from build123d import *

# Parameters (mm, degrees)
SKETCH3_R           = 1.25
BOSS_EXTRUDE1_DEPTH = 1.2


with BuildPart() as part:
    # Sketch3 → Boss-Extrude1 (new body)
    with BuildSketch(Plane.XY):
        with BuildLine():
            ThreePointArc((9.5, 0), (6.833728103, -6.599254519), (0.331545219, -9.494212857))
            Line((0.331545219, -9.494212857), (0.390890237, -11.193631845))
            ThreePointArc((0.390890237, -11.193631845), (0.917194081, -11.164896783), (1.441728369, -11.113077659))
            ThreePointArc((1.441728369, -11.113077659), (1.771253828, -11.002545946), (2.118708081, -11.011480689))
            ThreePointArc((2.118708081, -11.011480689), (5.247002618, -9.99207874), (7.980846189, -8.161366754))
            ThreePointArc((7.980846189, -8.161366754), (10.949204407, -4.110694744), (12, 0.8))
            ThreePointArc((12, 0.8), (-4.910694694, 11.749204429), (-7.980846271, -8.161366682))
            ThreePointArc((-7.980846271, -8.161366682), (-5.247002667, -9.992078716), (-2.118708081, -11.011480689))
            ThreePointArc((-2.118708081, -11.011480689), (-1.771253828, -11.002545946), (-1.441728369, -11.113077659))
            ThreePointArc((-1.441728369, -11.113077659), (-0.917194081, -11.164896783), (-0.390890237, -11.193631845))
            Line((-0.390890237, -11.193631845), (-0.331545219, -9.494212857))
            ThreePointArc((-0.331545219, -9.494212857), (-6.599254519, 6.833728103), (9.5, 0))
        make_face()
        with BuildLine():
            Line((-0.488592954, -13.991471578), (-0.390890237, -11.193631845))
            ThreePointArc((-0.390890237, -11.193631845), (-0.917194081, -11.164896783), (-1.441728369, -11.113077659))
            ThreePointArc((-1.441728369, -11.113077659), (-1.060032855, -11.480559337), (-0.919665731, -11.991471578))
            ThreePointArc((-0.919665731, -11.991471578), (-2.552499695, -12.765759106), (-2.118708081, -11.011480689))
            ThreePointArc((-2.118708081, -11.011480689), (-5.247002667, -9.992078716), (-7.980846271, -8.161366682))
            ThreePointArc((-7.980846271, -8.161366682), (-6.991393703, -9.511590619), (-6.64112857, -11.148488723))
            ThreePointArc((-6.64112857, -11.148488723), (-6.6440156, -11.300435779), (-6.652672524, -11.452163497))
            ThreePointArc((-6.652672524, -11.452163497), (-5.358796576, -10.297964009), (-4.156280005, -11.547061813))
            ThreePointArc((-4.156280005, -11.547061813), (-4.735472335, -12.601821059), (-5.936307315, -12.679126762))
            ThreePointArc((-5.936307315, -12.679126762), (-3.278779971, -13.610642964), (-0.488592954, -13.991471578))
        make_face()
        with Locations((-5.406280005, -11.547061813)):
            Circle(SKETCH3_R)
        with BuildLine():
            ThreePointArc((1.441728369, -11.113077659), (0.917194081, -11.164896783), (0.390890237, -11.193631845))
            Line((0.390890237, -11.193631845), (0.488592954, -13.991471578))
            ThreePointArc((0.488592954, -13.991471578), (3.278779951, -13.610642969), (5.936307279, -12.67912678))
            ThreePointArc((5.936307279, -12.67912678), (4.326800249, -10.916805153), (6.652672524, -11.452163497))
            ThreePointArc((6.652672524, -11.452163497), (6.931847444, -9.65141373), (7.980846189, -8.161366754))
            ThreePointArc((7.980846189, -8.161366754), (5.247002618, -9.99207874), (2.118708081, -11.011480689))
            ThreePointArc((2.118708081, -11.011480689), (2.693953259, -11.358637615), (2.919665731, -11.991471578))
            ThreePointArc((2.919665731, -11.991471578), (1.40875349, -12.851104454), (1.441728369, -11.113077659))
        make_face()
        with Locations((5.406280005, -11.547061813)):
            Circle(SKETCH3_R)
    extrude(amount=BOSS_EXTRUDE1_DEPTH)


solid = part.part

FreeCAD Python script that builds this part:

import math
import FreeCAD as App
import Part
import Sketcher

doc = App.newDocument("Part")
body = doc.addObject("PartDesign::Body", "Body")

sketch1 = doc.addObject("Sketcher::SketchObject", "Sketch")
body.addObject(sketch1)
sketch1.AttachmentSupport = (doc.XY_Plane, [""])
sketch1.MapMode = "FlatFace"
sketch1.addGeometry([
    Part.ArcOfCircle(Part.Circle(App.Vector(0, 0, 0), App.Vector(0, 0, 1), 9.5), math.radians(-88), math.radians(0)),
    Part.LineSegment(App.Vector(0.331545, -9.494213, 0), App.Vector(0.39089, -11.193632, 0)),
    Part.LineSegment(App.Vector(0.39089, -11.193632, 0), App.Vector(0.488593, -13.991472, 0)),
    Part.ArcOfCircle(Part.Circle(App.Vector(0, 0, 0), App.Vector(0, 0, 1), 14), math.radians(-88), math.radians(-64.911228)),
    Part.ArcOfCircle(Part.Circle(App.Vector(5.40628, -11.547062, 0), App.Vector(0, 0, 1), 1.25), math.radians(-64.911237), math.radians(4.354008)),
    Part.ArcOfCircle(Part.Circle(App.Vector(10.641129, -11.148489, 0), App.Vector(0, 0, 1), 4), math.radians(131.687741), math.radians(184.35401)),
    Part.ArcOfCircle(Part.Circle(App.Vector(0, 0.8, 0), App.Vector(0, 0, 1), 12), math.radians(-48.312265), math.radians(0)),
    Part.ArcOfCircle(Part.Circle(App.Vector(0, 0.8, 0), App.Vector(0, 0, 1), 12), math.radians(0), math.radians(228.312264)),
    Part.ArcOfCircle(Part.Circle(App.Vector(-10.641129, -11.148489, 0), App.Vector(0, 0, 1), 4), math.radians(0), math.radians(48.31226)),
    Part.ArcOfCircle(Part.Circle(App.Vector(-10.641128, -11.148489, 0), App.Vector(0, 0, 1), 3.999999), math.radians(-4.35401), math.radians(0)),
    Part.ArcOfCircle(Part.Circle(App.Vector(-5.40628, -11.547062, 0), App.Vector(0, 0, 1), 1.25), math.radians(175.645992), math.radians(244.911235)),
    Part.ArcOfCircle(Part.Circle(App.Vector(0, 0, 0), App.Vector(0, 0, 1), 14), math.radians(-115.088772), math.radians(-92)),
    Part.LineSegment(App.Vector(-0.488593, -13.991472, 0), App.Vector(-0.39089, -11.193632, 0)),
    Part.LineSegment(App.Vector(-0.39089, -11.193632, 0), App.Vector(-0.331545, -9.494213, 0)),
    Part.ArcOfCircle(Part.Circle(App.Vector(0, 0, 0), App.Vector(0, 0, 1), 9.5), math.radians(0), math.radians(268)),
    Part.ArcOfCircle(Part.Circle(App.Vector(1.919666, -11.991472, 0), App.Vector(0, 0, 1), 1), math.radians(78.519036), math.radians(118.550774)),
    Part.ArcOfCircle(Part.Circle(App.Vector(1.919666, -11.991472, 0), App.Vector(0, 0, 1), 1), math.radians(0), math.radians(78.519036)),
    Part.ArcOfCircle(Part.Circle(App.Vector(1.919666, -11.991472, 0), App.Vector(0, 0, 1), 1), math.radians(118.550774), math.radians(360)),
    Part.ArcOfCircle(Part.Circle(App.Vector(-1.919666, -11.991472, 0), App.Vector(0, 0, 1), 1), math.radians(61.449226), math.radians(101.480964)),
    Part.ArcOfCircle(Part.Circle(App.Vector(-1.919666, -11.991472, 0), App.Vector(0, 0, 1), 1), math.radians(0), math.radians(61.449226)),
    Part.ArcOfCircle(Part.Circle(App.Vector(-1.919666, -11.991472, 0), App.Vector(0, 0, 1), 1), math.radians(101.480964), math.radians(360)),
], False)
sketch1.addConstraint([
    Sketcher.Constraint("Coincident", 0, 1, 1, 1),
    Sketcher.Constraint("Coincident", 1, 2, 2, 1),
    Sketcher.Constraint("Coincident", 2, 2, 3, 1),
    Sketcher.Constraint("Coincident", 3, 2, 4, 1),
    Sketcher.Constraint("Coincident", 4, 2, 5, 2),
    Sketcher.Constraint("Coincident", 5, 1, 6, 1),
    Sketcher.Constraint("Coincident", 6, 2, 7, 1),
    Sketcher.Constraint("Coincident", 7, 2, 8, 2),
    Sketcher.Constraint("Coincident", 8, 1, 9, 2),
    Sketcher.Constraint("Coincident", 9, 1, 10, 1),
    Sketcher.Constraint("Coincident", 10, 2, 11, 1),
    Sketcher.Constraint("Coincident", 11, 2, 12, 1),
    Sketcher.Constraint("Coincident", 12, 2, 13, 1),
    Sketcher.Constraint("Coincident", 13, 2, 14, 2),
    Sketcher.Constraint("Coincident", 14, 1, 0, 2),
    Sketcher.Constraint("Coincident", 15, 1, 16, 2),
    Sketcher.Constraint("Coincident", 16, 1, 17, 2),
    Sketcher.Constraint("Coincident", 17, 1, 15, 2),
    Sketcher.Constraint("Coincident", 18, 1, 19, 2),
    Sketcher.Constraint("Coincident", 19, 1, 20, 2),
    Sketcher.Constraint("Coincident", 20, 1, 18, 2),
    Sketcher.Constraint("Coincident", 0, 3, -1, 1),
    Sketcher.Constraint("Coincident", 3, 3, -1, 1),
    Sketcher.Constraint("Coincident", 11, 3, -1, 1),
    Sketcher.Constraint("Coincident", 14, 3, -1, 1),
    Sketcher.Constraint("Coincident", 7, 3, 6, 3),
    Sketcher.Constraint("Coincident", 9, 3, 8, 3),
    Sketcher.Constraint("Coincident", 16, 3, 15, 3),
    Sketcher.Constraint("Coincident", 19, 3, 18, 3),
    Sketcher.Constraint("PointOnObject", 6, 3, -2),
    Sketcher.Constraint("PointOnObject", 14, 1, -1),
    Sketcher.Constraint("Radius", 3, 14.0),
    Sketcher.Constraint("Radius", 5, 4.0),
    Sketcher.Constraint("Radius", 6, 12.0),
    Sketcher.Constraint("Radius", 8, 4.0),
    Sketcher.Constraint("Radius", 11, 14.0),
    Sketcher.Constraint("Radius", 15, 1.0),
    Sketcher.Constraint("Radius", 17, 1.0),
    Sketcher.Constraint("Radius", 18, 1.0),
    Sketcher.Constraint("Radius", 20, 1.0),
    Sketcher.Constraint("Radius", 0, 9.5),
    Sketcher.Constraint("Radius", 4, 1.25),
    Sketcher.Constraint("Radius", 10, 1.25),
    Sketcher.Constraint("DistanceY", 2, 2, 15, 3, 2.0),
    Sketcher.Constraint("DistanceY", 2, 2, 18, 3, 2.0),
    Sketcher.Constraint("DistanceY", 11, 2, 18, 3, 2.0),
    Sketcher.Constraint("DistanceY", -1, 1, 6, 3, 0.8),
    Sketcher.Constraint("DistanceY", -1, 1, 6, 2, 0.8),
    Sketcher.Constraint("DistanceY", 4, 3, 4, 2, 0.094898),
    Sketcher.Constraint("DistanceY", 10, 3, 9, 1, 0.094898),
    Sketcher.Constraint("DistanceX", -1, 1, 4, 3, 5.40628),
    Sketcher.Constraint("DistanceX", 8, 3, -1, 1, 10.641129),
    Sketcher.Constraint("DistanceY", 15, 3, -1, 1, 11.991472),
    Sketcher.Constraint("DistanceX", -1, 1, 1, 2, 0.39089),
    Sketcher.Constraint("DistanceY", 1, 2, -1, 1, 11.193632),
    Sketcher.Constraint("DistanceY", 8, 1, -1, 1, 11.148489),
    Sketcher.Constraint("DistanceX", 12, 2, -1, 1, 0.39089),
    Sketcher.Constraint("DistanceY", 12, 2, -1, 1, 11.193632),
    Sketcher.Constraint("DistanceX", -1, 1, 15, 1, 2.118708),
    Sketcher.Constraint("DistanceY", 15, 1, -1, 1, 11.011481),
    Sketcher.Constraint("DistanceY", 16, 1, -1, 1, 11.991472),
    Sketcher.Constraint("DistanceX", -1, 1, 17, 1, 1.441728),
    Sketcher.Constraint("DistanceX", 18, 1, -1, 1, 1.441728),
    Sketcher.Constraint("DistanceY", 19, 1, -1, 1, 11.991472),
    Sketcher.Constraint("DistanceX", 20, 1, -1, 1, 2.118708),
    Sketcher.Constraint("DistanceY", 20, 1, -1, 1, 11.011481),
    Sketcher.Constraint("DistanceX", 0, 1, 17, 3, 1.588121),
    Sketcher.Constraint("DistanceX", 15, 3, 3, 2, 4.016642),
    Sketcher.Constraint("DistanceY", 5, 3, 5, 1, 2.987122),
    Sketcher.Constraint("DistanceX", 9, 3, 7, 2, 2.660282),
    Sketcher.Constraint("DistanceX", 8, 1, 10, 2, 0.704821),
    Sketcher.Constraint("DistanceX", 13, 2, 0, 1, 0.66309),
])
pad1 = doc.addObject("PartDesign::Pad", "Pad")
body.addObject(pad1)
pad1.Profile = sketch1
pad1.Length = 1.2

doc.recompute()
